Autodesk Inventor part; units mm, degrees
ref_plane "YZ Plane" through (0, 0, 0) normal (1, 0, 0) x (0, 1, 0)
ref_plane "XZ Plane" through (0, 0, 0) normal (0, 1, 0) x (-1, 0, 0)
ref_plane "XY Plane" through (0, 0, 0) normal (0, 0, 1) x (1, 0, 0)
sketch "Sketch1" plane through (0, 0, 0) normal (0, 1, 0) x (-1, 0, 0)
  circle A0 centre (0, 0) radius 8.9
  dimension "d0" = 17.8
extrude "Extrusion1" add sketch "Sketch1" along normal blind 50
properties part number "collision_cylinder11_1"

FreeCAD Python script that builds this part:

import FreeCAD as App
import Part
import Sketcher

V = App.Vector
Q = App.Units.Quantity

doc = App.newDocument("Part")
body = doc.addObject("PartDesign::Body", "Body")

# Sketch on XZ plane
sketch1 = doc.addObject("Sketcher::SketchObject", "Sketch")
body.addObject(sketch1)
sketch1.AttachmentSupport = (doc.XZ_Plane, [""])
sketch1.MapMode = "FlatFace"
sketch1.addGeometry(Part.Circle(V(0, 0, 0), V(0, 0, 1), 9), False)
sketch1.addConstraint([
    Sketcher.Constraint("Coincident", 0, 3, -1, 1),
    Sketcher.Constraint("Diameter", 0, Q("17.8 mm")),
])
pad1 = doc.addObject("PartDesign::Pad", "Pad")
body.addObject(pad1)
pad1.Profile = sketch1
pad1.Length = 50
pad1.Reversed = True

doc.recompute()
